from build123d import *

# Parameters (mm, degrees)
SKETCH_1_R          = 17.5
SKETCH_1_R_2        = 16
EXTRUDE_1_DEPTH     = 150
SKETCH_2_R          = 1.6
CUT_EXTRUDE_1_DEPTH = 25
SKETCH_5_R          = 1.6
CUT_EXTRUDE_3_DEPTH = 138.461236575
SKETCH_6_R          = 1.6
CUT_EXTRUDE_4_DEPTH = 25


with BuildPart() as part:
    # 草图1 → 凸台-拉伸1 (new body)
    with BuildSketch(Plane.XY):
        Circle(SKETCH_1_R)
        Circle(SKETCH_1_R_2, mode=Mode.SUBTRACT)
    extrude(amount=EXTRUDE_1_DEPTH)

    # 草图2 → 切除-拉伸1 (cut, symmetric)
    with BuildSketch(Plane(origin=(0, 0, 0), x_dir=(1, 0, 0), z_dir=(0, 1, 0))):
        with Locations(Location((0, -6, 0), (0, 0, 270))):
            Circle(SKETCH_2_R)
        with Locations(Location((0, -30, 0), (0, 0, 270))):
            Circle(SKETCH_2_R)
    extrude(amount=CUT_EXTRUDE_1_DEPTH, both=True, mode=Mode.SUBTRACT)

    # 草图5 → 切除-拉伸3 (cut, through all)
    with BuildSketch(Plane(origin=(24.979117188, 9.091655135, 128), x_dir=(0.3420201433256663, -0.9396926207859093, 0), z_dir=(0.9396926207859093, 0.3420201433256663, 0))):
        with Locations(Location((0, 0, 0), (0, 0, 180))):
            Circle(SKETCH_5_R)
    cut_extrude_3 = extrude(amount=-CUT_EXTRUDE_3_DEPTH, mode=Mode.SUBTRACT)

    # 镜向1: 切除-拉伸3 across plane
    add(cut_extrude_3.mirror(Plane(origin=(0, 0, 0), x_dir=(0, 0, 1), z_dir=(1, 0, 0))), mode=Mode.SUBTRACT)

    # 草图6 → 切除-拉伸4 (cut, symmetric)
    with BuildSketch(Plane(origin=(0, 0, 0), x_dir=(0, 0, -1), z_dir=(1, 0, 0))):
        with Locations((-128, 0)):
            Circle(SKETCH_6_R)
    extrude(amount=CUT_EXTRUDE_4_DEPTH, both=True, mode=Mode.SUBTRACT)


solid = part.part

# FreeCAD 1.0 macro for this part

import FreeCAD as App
import Part
import Sketcher
Q = App.Units.Quantity

doc = App.newDocument("Part")
params = doc.addObject("Spreadsheet::Sheet", "Params")
for row, (alias, value) in enumerate([
    ("sketch1_diameter", "35 mm"),
    ("sketch1_diameter2", "32 mm"),
    ("pad1_length", "150 mm"),
    ("sketch2_diameter", "3.2 mm"),
    ("pocket1_length", "50 mm"),
    ("sketch3_diameter", "3.2 mm"),
    ("sketch4_diameter", "3.2 mm"),
    ("pocket3_length", "50 mm"),
], start=1):
    params.set(f"A{row}", alias)
    params.set(f"B{row}", "=" + value)
    params.setAlias(f"B{row}", alias)

body = doc.addObject("PartDesign::Body", "Body")

sketch1 = body.newObject("Sketcher::SketchObject", "Sketch")
sketch1.AttachmentSupport = (doc.getObject("XY_Plane"), [""])
sketch1.MapMode = "FlatFace"
sketch1.addGeometry([
    Part.Circle(App.Vector(0, 0, 0), App.Vector(0, 0, 1), 18),
    Part.Circle(App.Vector(0, 0, 0), App.Vector(0, 0, 1), 16),
], False)
sketch1.addConstraint([
    Sketcher.Constraint("Coincident", 0, 3, -1, 1),
    Sketcher.Constraint("Coincident", 1, 3, -1, 1),
    Sketcher.Constraint("Diameter", 0, Q("35 mm")),
    Sketcher.Constraint("Diameter", 1, Q("32 mm")),
])
sketch1.setExpression("Constraints[2]", "Params.sketch1_diameter")
sketch1.setExpression("Constraints[3]", "Params.sketch1_diameter2")
pad1 = body.newObject("PartDesign::Pad", "Pad")
pad1.Profile = sketch1
pad1.setExpression("Length", "Params.pad1_length")

sketch2 = body.newObject("Sketcher::SketchObject", "Sketch001")
sketch2.AttachmentSupport = (doc.getObject("XZ_Plane"), [""])
sketch2.MapMode = "FlatFace"
sketch2.addGeometry([
    Part.Circle(App.Vector(0, 6, 0), App.Vector(0, 0, 1), 1.6),
    Part.Circle(App.Vector(0, 30, 0), App.Vector(0, 0, 1), 1.6),
], False)
sketch2.addConstraint([
    Sketcher.Constraint("Equal", 0, 1),
    Sketcher.Constraint("PointOnObject", 0, 3, -2),
    Sketcher.Constraint("PointOnObject", 1, 3, -2),
    Sketcher.Constraint("Diameter", 0, Q("3.2 mm")),
    Sketcher.Constraint("DistanceY", -1, 1, 0, 3, Q("6 mm")),
    Sketcher.Constraint("DistanceY", -1, 1, 1, 3, Q("30 mm")),
])
sketch2.setExpression("Constraints[3]", "Params.sketch2_diameter")
pocket1 = body.newObject("PartDesign::Pocket", "Pocket")
pocket1.Profile = sketch2
pocket1.setExpression("Length", "Params.pocket1_length")
pocket1.Midplane = True

sketch3 = body.newObject("Sketcher::SketchObject", "Sketch002")
sketch3.Placement = App.Placement(App.Vector(24.979117, 9.091655, 128), App.Rotation(App.Vector(0.342020143, -0.939692621, 0), App.Vector(0, 0, -1), App.Vector(0.939692621, 0.342020143, 0), "ZXY"))
sketch3.addGeometry(Part.Circle(App.Vector(0, 0, 0), App.Vector(0, 0, 1), 1.6), False)
sketch3.addConstraint([
    Sketcher.Constraint("Coincident", 0, 3, -1, 1),
    Sketcher.Constraint("Diameter", 0, Q("3.2 mm")),
])
sketch3.setExpression("Constraints[1]", "Params.sketch3_diameter")
pocket2 = body.newObject("PartDesign::Pocket", "Pocket001")
pocket2.Profile = sketch3
pocket2.Type = "ThroughAll"
doc.recompute()

mirrored = body.newObject("PartDesign::Mirrored", "Mirrored")
mirrored.Originals = [pocket2]
mirrored.MirrorPlane = (doc.getObject("YZ_Plane"), [""])
body.Tip = mirrored

sketch4 = body.newObject("Sketcher::SketchObject", "Sketch003")
sketch4.AttachmentSupport = (doc.getObject("YZ_Plane"), [""])
sketch4.MapMode = "FlatFace"
sketch4.addGeometry(Part.Circle(App.Vector(0, 128, 0), App.Vector(0, 0, 1), 1.6), False)
sketch4.addConstraint([
    Sketcher.Constraint("PointOnObject", 0, 3, -2),
    Sketcher.Constraint("Diameter", 0, Q("3.2 mm")),
    Sketcher.Constraint("DistanceY", -1, 1, 0, 3, Q("128 mm")),
])
sketch4.setExpression("Constraints[1]", "Params.sketch4_diameter")
pocket3 = body.newObject("PartDesign::Pocket", "Pocket002")
pocket3.Profile = sketch4
pocket3.setExpression("Length", "Params.pocket3_length")
pocket3.Midplane = True

doc.recompute()
